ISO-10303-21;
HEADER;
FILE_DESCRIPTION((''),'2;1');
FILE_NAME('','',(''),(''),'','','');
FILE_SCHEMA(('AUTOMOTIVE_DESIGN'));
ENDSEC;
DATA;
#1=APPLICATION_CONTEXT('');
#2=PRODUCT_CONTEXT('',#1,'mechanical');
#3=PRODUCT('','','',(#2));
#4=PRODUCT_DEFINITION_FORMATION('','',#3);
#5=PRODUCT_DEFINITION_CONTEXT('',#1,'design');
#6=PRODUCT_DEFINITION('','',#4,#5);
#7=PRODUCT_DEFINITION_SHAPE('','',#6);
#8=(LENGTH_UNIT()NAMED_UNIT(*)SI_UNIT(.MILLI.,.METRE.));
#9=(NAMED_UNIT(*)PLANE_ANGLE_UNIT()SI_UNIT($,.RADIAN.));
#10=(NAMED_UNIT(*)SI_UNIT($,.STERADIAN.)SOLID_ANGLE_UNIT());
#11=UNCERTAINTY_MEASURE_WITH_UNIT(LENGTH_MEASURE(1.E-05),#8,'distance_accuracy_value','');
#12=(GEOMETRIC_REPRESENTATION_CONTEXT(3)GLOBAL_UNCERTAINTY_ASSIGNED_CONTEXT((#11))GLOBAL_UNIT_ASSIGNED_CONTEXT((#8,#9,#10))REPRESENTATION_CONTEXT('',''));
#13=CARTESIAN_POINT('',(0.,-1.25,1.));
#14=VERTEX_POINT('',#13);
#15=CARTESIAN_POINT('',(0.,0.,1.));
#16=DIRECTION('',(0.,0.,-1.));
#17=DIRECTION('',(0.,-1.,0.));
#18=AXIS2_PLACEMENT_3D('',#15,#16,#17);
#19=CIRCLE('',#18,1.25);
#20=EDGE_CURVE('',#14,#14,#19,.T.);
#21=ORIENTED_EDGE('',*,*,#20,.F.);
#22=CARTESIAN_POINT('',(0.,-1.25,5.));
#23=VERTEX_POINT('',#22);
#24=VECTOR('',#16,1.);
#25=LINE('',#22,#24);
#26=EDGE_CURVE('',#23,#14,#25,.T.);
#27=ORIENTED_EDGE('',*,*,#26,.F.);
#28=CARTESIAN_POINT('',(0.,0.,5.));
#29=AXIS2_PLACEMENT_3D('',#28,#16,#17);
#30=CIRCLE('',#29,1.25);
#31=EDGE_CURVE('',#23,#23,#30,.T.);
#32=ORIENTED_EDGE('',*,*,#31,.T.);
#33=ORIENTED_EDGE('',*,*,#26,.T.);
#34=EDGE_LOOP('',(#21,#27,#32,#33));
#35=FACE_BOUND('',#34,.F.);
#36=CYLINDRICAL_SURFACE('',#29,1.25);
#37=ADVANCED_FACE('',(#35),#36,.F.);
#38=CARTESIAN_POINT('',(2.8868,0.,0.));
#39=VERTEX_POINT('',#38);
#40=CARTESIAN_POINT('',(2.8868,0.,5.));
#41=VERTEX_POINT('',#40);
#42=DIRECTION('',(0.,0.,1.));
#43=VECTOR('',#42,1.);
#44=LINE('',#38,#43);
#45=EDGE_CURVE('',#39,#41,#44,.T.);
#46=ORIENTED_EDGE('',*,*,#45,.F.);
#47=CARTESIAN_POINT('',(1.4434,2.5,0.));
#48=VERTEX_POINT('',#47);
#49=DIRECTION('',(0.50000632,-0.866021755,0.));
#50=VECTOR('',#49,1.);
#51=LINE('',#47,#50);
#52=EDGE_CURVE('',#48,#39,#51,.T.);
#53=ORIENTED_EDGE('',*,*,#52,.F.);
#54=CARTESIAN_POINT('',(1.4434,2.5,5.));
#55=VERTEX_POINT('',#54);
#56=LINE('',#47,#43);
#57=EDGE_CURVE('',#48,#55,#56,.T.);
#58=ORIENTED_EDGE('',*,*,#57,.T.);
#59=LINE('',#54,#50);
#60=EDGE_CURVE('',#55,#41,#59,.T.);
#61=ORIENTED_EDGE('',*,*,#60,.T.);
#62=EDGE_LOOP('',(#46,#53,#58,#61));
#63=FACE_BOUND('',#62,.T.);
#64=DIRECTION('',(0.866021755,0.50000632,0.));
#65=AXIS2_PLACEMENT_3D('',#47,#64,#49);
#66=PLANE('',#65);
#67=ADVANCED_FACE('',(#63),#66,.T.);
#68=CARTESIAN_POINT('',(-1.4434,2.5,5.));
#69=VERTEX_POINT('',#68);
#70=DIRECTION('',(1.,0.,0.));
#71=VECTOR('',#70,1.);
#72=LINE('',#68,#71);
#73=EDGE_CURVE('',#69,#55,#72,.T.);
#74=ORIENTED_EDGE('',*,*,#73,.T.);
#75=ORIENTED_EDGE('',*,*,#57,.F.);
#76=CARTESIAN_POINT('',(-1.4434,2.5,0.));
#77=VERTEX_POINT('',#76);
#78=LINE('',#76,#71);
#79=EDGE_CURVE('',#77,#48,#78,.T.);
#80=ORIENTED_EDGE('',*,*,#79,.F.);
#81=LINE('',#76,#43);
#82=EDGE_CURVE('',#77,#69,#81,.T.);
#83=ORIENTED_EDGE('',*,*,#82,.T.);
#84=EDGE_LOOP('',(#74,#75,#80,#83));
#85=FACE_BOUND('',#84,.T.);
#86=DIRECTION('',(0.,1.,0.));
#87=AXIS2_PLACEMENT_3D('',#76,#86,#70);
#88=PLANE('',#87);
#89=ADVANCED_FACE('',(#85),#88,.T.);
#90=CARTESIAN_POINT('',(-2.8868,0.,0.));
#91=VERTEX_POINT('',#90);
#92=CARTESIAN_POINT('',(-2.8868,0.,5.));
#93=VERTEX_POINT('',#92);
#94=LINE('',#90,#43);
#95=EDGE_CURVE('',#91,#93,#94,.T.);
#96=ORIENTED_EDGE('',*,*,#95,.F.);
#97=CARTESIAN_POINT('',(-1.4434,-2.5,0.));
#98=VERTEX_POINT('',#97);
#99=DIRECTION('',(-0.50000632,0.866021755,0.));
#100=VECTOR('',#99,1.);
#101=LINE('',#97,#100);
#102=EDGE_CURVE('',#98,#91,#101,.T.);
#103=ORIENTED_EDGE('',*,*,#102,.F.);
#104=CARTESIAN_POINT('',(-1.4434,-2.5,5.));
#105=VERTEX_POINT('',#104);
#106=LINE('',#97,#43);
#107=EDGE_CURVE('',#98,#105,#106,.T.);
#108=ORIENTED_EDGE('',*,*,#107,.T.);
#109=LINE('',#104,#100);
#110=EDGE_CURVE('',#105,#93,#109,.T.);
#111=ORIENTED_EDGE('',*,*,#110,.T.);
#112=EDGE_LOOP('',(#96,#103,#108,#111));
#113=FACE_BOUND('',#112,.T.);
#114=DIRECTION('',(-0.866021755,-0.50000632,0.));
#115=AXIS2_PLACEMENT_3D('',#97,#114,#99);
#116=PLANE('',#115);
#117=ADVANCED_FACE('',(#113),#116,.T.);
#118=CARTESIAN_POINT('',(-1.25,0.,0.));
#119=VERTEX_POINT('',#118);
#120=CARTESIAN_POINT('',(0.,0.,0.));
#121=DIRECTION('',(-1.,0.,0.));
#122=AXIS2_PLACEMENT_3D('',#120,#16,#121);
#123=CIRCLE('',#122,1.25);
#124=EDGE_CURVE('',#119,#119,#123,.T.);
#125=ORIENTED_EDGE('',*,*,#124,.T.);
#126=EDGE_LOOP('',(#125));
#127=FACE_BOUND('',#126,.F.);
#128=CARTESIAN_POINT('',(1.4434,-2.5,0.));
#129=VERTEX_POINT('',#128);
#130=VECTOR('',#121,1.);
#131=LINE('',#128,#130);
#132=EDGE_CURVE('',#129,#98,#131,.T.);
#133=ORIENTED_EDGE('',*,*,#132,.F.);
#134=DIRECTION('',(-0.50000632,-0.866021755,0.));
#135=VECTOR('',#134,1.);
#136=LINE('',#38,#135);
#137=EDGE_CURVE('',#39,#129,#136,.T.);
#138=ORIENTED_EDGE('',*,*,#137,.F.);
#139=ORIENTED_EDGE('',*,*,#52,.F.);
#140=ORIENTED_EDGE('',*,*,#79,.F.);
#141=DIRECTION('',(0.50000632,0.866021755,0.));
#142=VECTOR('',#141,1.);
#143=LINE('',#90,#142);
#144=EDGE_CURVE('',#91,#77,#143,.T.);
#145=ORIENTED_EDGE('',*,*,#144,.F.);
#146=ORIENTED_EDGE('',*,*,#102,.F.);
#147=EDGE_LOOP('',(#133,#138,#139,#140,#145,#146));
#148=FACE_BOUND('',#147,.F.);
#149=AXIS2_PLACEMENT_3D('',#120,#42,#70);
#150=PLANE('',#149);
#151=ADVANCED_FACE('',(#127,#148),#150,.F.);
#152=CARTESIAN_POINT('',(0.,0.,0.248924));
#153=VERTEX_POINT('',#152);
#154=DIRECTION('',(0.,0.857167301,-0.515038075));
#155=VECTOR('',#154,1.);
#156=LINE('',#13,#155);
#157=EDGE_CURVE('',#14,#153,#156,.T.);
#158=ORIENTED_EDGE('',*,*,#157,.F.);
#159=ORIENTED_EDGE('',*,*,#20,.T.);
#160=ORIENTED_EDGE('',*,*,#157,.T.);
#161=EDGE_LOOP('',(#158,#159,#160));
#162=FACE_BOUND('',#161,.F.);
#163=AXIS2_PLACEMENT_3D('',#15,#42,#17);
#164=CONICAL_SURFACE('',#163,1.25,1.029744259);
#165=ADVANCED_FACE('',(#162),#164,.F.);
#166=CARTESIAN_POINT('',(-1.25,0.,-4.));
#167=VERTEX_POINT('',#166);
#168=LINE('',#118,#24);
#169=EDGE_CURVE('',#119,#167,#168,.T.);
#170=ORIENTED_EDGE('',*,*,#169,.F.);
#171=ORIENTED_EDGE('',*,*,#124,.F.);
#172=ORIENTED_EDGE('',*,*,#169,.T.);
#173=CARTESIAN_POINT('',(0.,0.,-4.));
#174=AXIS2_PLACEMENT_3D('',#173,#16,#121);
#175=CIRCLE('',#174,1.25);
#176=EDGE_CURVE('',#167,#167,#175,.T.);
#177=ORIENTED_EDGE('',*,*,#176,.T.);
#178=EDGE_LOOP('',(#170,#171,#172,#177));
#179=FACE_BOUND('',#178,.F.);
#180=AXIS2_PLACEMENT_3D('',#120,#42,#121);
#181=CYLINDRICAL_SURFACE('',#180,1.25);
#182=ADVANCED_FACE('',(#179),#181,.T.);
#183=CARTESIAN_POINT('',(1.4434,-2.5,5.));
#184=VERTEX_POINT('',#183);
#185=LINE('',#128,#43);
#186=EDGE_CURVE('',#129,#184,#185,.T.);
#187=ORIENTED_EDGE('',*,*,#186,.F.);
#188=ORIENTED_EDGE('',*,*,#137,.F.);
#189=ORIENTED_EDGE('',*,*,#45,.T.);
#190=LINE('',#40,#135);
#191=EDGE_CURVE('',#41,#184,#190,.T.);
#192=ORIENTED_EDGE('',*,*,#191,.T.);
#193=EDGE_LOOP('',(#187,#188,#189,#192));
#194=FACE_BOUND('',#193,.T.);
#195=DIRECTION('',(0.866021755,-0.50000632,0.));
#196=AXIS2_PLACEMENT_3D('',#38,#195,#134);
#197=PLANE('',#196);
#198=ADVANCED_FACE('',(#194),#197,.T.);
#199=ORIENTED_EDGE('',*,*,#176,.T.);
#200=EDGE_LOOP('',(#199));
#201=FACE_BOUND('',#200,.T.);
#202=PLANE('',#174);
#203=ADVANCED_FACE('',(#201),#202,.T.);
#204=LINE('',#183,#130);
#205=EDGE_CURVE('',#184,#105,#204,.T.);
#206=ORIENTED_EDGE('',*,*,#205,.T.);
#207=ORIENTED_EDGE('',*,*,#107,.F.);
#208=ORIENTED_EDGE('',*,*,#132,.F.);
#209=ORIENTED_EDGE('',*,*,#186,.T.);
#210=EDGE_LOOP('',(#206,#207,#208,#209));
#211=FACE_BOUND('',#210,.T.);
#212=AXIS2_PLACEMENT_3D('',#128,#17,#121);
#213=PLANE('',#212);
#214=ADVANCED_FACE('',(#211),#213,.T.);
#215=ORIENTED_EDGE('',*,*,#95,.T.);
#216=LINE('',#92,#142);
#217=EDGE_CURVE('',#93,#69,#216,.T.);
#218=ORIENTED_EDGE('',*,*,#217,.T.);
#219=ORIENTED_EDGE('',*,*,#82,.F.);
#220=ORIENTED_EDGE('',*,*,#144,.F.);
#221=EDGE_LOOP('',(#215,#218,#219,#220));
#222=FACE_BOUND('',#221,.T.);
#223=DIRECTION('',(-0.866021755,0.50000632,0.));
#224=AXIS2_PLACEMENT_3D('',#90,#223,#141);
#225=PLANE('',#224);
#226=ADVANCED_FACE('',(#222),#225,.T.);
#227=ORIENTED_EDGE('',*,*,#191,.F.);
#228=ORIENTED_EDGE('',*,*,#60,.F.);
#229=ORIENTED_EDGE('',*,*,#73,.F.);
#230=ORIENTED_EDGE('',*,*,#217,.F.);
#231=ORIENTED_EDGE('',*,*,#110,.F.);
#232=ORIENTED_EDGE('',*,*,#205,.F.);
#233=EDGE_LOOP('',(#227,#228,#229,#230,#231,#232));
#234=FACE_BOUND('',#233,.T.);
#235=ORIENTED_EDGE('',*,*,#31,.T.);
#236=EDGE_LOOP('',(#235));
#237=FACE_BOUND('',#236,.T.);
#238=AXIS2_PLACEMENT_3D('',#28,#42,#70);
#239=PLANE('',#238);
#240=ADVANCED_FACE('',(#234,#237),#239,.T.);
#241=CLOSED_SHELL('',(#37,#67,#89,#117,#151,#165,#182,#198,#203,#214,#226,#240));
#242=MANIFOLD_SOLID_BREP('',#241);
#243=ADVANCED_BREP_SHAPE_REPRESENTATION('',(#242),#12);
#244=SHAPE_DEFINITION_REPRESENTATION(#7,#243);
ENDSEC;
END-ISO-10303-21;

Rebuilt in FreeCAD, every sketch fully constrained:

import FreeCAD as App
import Part
import Sketcher
from FreeCAD import Vector
Q = App.Units.Quantity


def add_polygon(sketch, points):
    """Adds a closed chain of lines whose ends are joined by coincident constraints."""
    first, n = sketch.GeometryCount, len(points)
    for a, b in zip(points, points[1:] + points[:1]):
        sketch.addGeometry(Part.LineSegment(App.Vector(*a, 0), App.Vector(*b, 0)), False)
    for i in range(n):
        sketch.addConstraint(Sketcher.Constraint("Coincident", first + i, 2, first + (i + 1) % n, 1))

doc = App.newDocument("Part")
body = doc.addObject("PartDesign::Body", "Body")

# Sketch on XY plane
sketch1 = doc.addObject("Sketcher::SketchObject", "Sketch")
body.addObject(sketch1)
sketch1.AttachmentSupport = (doc.XY_Plane, [""])
sketch1.MapMode = "FlatFace"
add_polygon(sketch1, [(1.4, 2.5), (-1.4, 2.5), (-2.9, 0), (-1.4, -2.5), (1.4, -2.5), (2.9, 0)])  # lines 0-5
sketch1.addConstraint(Sketcher.Constraint("Horizontal", 0))
sketch1.addConstraint(Sketcher.Constraint("Horizontal", 3))
sketch1.addConstraint(Sketcher.Constraint("Symmetric", 0, 2, 3, 2, -1, 1))
sketch1.addConstraint(Sketcher.Constraint("Symmetric", 1, 2, 4, 2, -1, 1))
sketch1.addConstraint(Sketcher.Constraint("PointOnObject", 1, 2, -1))
sketch1.addConstraint(Sketcher.Constraint("Parallel", 2, 5))
sketch1.addConstraint(Sketcher.Constraint("Vertical", 0, 2, 2, 2))
sketch1.addConstraint(Sketcher.Constraint("Angle", 1, Q("-120.0004 deg")))
sketch1.addConstraint(Sketcher.Constraint("DistanceY", 2, 2, 0, 2, 5.0))
sketch1.addConstraint(Sketcher.Constraint("DistanceX", 0, 2, 0, 1, 2.8868))
pad1 = doc.addObject("PartDesign::Pad", "Pad")
body.addObject(pad1)
pad1.Profile = sketch1
pad1.Length = 5

# Sketch on XY plane
sketch2 = doc.addObject("Sketcher::SketchObject", "Sketch001")
body.addObject(sketch2)
sketch2.AttachmentSupport = (doc.XY_Plane, [""])
sketch2.MapMode = "FlatFace"
sketch2.AttachmentOffset = App.Placement(Vector(0, 0, 5), App.Rotation())
sketch2.addGeometry(Part.Circle(Vector(0, 0, 0), Vector(0, 0, 1), 1.2), False)
sketch2.addConstraint(Sketcher.Constraint("Coincident", 0, 3, -1, 1))
sketch2.addConstraint(Sketcher.Constraint("Diameter", 0, 2.5))
doc.recompute()
hole = doc.addObject("PartDesign::Hole", "Hole")
body.addObject(hole)
hole.Profile = sketch2
hole.ThreadType = "None"
hole.Diameter = 2.5
hole.DepthType = "Dimension"
hole.Depth = 4
hole.DrillPoint = "Angled"
hole.DrillPointAngle = 118

# Sketch on XY plane
sketch3 = doc.addObject("Sketcher::SketchObject", "Sketch002")
body.addObject(sketch3)
sketch3.AttachmentSupport = (doc.XY_Plane, [""])
sketch3.MapMode = "FlatFace"
sketch3.addGeometry(Part.Circle(Vector(0, 0, 0), Vector(0, 0, 1), 1.2), False)
sketch3.addConstraint(Sketcher.Constraint("Coincident", 0, 3, -1, 1))
sketch3.addConstraint(Sketcher.Constraint("Diameter", 0, 2.5))
pad2 = doc.addObject("PartDesign::Pad", "Pad001")
body.addObject(pad2)
pad2.Profile = sketch3
pad2.Length = 4
pad2.Reversed = True

doc.recompute()
